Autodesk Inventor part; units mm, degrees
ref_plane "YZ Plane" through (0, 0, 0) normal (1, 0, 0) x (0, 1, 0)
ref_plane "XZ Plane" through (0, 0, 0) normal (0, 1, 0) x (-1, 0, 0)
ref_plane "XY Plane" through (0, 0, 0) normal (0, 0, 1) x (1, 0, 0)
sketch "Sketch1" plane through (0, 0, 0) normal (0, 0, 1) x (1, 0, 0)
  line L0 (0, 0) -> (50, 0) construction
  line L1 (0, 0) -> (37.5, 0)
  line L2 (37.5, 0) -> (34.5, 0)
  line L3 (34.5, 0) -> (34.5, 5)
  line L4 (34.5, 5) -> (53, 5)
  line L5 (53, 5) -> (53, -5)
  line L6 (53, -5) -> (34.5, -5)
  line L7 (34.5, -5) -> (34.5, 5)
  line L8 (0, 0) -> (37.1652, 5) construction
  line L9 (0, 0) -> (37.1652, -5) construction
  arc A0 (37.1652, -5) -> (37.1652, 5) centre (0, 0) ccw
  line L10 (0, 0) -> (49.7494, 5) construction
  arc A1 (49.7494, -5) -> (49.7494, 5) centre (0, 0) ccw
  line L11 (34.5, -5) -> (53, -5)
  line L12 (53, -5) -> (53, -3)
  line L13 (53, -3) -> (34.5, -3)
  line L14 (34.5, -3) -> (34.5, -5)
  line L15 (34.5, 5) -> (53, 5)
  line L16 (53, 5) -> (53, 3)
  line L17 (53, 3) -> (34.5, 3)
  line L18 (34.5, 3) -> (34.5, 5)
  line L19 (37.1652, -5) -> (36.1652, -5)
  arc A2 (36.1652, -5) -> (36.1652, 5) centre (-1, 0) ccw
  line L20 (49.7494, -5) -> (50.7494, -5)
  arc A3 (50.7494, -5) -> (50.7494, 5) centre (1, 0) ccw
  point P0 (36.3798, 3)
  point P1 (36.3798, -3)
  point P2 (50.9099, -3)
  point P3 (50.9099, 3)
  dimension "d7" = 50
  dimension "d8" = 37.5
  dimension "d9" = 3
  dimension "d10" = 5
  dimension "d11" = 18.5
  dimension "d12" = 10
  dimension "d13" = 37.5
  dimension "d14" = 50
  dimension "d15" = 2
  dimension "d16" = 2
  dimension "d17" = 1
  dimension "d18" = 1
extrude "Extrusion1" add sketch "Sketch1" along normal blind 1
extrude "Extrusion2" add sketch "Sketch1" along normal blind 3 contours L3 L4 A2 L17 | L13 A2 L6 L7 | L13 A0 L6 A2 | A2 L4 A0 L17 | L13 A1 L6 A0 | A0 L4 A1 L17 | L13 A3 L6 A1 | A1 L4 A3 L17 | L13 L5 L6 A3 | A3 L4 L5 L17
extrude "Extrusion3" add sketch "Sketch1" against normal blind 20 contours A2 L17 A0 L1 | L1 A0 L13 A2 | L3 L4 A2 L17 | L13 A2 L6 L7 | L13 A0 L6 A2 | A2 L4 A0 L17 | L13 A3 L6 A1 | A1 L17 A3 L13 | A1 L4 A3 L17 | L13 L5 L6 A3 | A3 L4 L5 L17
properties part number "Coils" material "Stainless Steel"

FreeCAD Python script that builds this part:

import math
import FreeCAD as App
import Part
import Sketcher

V = App.Vector


def add_polygon(sketch, points):
    """Adds a closed chain of lines whose ends are joined by coincident constraints."""
    first, n = sketch.GeometryCount, len(points)
    for a, b in zip(points, points[1:] + points[:1]):
        sketch.addGeometry(Part.LineSegment(App.Vector(*a, 0), App.Vector(*b, 0)), False)
    for i in range(n):
        sketch.addConstraint(Sketcher.Constraint("Coincident", first + i, 2, first + (i + 1) % n, 1))

doc = App.newDocument("Part")
params = doc.addObject("Spreadsheet::Sheet", "Params")
for row, (alias, value) in enumerate([
    ("sketch1_height", "10 mm"),
    ("sketch1_width", "18.5 mm"),
    ("pad1_length", "1 mm"),
    ("sketch2_height", "2 mm"),
    ("sketch2_width", "18.5 mm"),
    ("pad2_length", "3 mm"),
    ("sketch3_radius", "50 mm"),
    ("sketch3_radius2", "37.5 mm"),
    ("sketch3_height", "2 mm"),
    ("pad3_length", "20 mm"),
], start=1):
    params.set(f"A{row}", alias)
    params.set(f"B{row}", "=" + value)
    params.setAlias(f"B{row}", alias)

body = doc.addObject("PartDesign::Body", "Body")

sketch1 = body.newObject("Sketcher::SketchObject", "Sketch")
sketch1.AttachmentSupport = (doc.getObject("XY_Plane"), [""])
sketch1.MapMode = "FlatFace"
add_polygon(sketch1, [(34, -5), (53, -5), (53, 5), (34, 5)])
sketch1.addConstraint(Sketcher.Constraint("Horizontal", 0))
sketch1.addConstraint(Sketcher.Constraint("Vertical", 1))
sketch1.addConstraint(Sketcher.Constraint("Horizontal", 2))
sketch1.addConstraint(Sketcher.Constraint("Vertical", 3))
sketch1.addConstraint(Sketcher.Constraint("DistanceY", 1, 1, 1, 2, 10.0))
sketch1.addConstraint(Sketcher.Constraint("DistanceX", 0, 1, 0, 2, 18.5))
sketch1.addConstraint(Sketcher.Constraint("DistanceY", 0, 2, -1, 1, 5.0))
sketch1.addConstraint(Sketcher.Constraint("DistanceX", -1, 1, 0, 2, 53.0))
sketch1.setExpression("Constraints[8]", "Params.sketch1_height")
sketch1.setExpression("Constraints[9]", "Params.sketch1_width")
pad1 = body.newObject("PartDesign::Pad", "Pad")
pad1.Profile = sketch1
pad1.setExpression("Length", "Params.pad1_length")

sketch2 = body.newObject("Sketcher::SketchObject", "Sketch001")
sketch2.AttachmentSupport = (doc.getObject("XY_Plane"), [""])
sketch2.MapMode = "FlatFace"
add_polygon(sketch2, [(34.5, 5), (34.5, 3), (53, 3), (53, 5)])
add_polygon(sketch2, [(34.5, -3), (34.5, -5), (53, -5), (53, -3)])
sketch2.addConstraint(Sketcher.Constraint("Vertical", 0))
sketch2.addConstraint(Sketcher.Constraint("Horizontal", 1))
sketch2.addConstraint(Sketcher.Constraint("Vertical", 2))
sketch2.addConstraint(Sketcher.Constraint("Horizontal", 3))
sketch2.addConstraint(Sketcher.Constraint("Vertical", 4))
sketch2.addConstraint(Sketcher.Constraint("Horizontal", 5))
sketch2.addConstraint(Sketcher.Constraint("Vertical", 6))
sketch2.addConstraint(Sketcher.Constraint("Horizontal", 7))
sketch2.addConstraint(Sketcher.Constraint("Symmetric", 3, 2, 4, 2, -1))
sketch2.addConstraint(Sketcher.Constraint("Symmetric", 1, 2, 6, 2, -1))
sketch2.addConstraint(Sketcher.Constraint("DistanceY", 0, 2, 0, 1, 2.0))
sketch2.addConstraint(Sketcher.Constraint("DistanceX", 1, 1, 1, 2, 18.5))
sketch2.addConstraint(Sketcher.Constraint("DistanceY", -1, 1, 0, 2, 3.0))
sketch2.addConstraint(Sketcher.Constraint("DistanceX", -1, 1, 1, 2, 53.0))
sketch2.setExpression("Constraints[18]", "Params.sketch2_height")
sketch2.setExpression("Constraints[19]", "Params.sketch2_width")
pad2 = body.newObject("PartDesign::Pad", "Pad001")
pad2.Profile = sketch2
pad2.setExpression("Length", "Params.pad2_length")

sketch3 = body.newObject("Sketcher::SketchObject", "Sketch002")
sketch3.AttachmentSupport = (doc.getObject("XY_Plane"), [""])
sketch3.MapMode = "FlatFace"
sketch3.addGeometry(Part.ArcOfCircle(Part.Circle(V(-1, 0, 0), V(0, 0, 1), 37.5), math.radians(-4.59), math.radians(4.59)), False)
sketch3.addGeometry(Part.LineSegment(V(36.4, -3, 0), V(34.5, -3, 0)), False)
sketch3.addGeometry(Part.LineSegment(V(34.5, -3, 0), V(34.5, -5, 0)), False)
sketch3.addGeometry(Part.LineSegment(V(34.5, -5, 0), V(37.2, -5, 0)), False)
sketch3.addGeometry(Part.ArcOfCircle(Part.Circle(V(0, 0, 0), V(0, 0, 1), 37.5), math.radians(-7.66), math.radians(7.66)), False)
sketch3.addGeometry(Part.LineSegment(V(37.2, 5, 0), V(34.5, 5, 0)), False)
sketch3.addGeometry(Part.LineSegment(V(34.5, 5, 0), V(34.5, 3, 0)), False)
sketch3.addGeometry(Part.LineSegment(V(34.5, 3, 0), V(36.4, 3, 0)), False)
sketch3.addGeometry(Part.LineSegment(V(49.7, -5, 0), V(53, -5, 0)), False)
sketch3.addGeometry(Part.LineSegment(V(53, -5, 0), V(53, -3, 0)), False)
sketch3.addGeometry(Part.LineSegment(V(53, -3, 0), V(50.9, -3, 0)), False)
sketch3.addGeometry(Part.ArcOfCircle(Part.Circle(V(1, 0, 0), V(0, 0, 1), 50), math.radians(-3.44), math.radians(3.44)), False)
sketch3.addGeometry(Part.LineSegment(V(50.9, 3, 0), V(53, 3, 0)), False)
sketch3.addGeometry(Part.LineSegment(V(53, 3, 0), V(53, 5, 0)), False)
sketch3.addGeometry(Part.LineSegment(V(53, 5, 0), V(49.7, 5, 0)), False)
sketch3.addGeometry(Part.ArcOfCircle(Part.Circle(V(0, 0, 0), V(0, 0, 1), 50), math.radians(-5.74), math.radians(5.74)), False)
sketch3.addConstraint(Sketcher.Constraint("Coincident", 0, 1, 1, 1))
sketch3.addConstraint(Sketcher.Constraint("Coincident", 1, 2, 2, 1))
sketch3.addConstraint(Sketcher.Constraint("Coincident", 2, 2, 3, 1))
sketch3.addConstraint(Sketcher.Constraint("Coincident", 3, 2, 4, 1))
sketch3.addConstraint(Sketcher.Constraint("Coincident", 4, 2, 5, 1))
sketch3.addConstraint(Sketcher.Constraint("Coincident", 5, 2, 6, 1))
sketch3.addConstraint(Sketcher.Constraint("Coincident", 6, 2, 7, 1))
sketch3.addConstraint(Sketcher.Constraint("Coincident", 7, 2, 0, 2))
sketch3.addConstraint(Sketcher.Constraint("Coincident", 8, 2, 9, 1))
sketch3.addConstraint(Sketcher.Constraint("Coincident", 9, 2, 10, 1))
sketch3.addConstraint(Sketcher.Constraint("Coincident", 10, 2, 11, 1))
sketch3.addConstraint(Sketcher.Constraint("Coincident", 11, 2, 12, 1))
sketch3.addConstraint(Sketcher.Constraint("Coincident", 12, 2, 13, 1))
sketch3.addConstraint(Sketcher.Constraint("Coincident", 13, 2, 14, 1))
sketch3.addConstraint(Sketcher.Constraint("Coincident", 14, 2, 15, 2))
sketch3.addConstraint(Sketcher.Constraint("Coincident", 15, 1, 8, 1))
sketch3.addConstraint(Sketcher.Constraint("Horizontal", 1))
sketch3.addConstraint(Sketcher.Constraint("Vertical", 2))
sketch3.addConstraint(Sketcher.Constraint("Horizontal", 3))
sketch3.addConstraint(Sketcher.Constraint("Horizontal", 5))
sketch3.addConstraint(Sketcher.Constraint("Vertical", 6))
sketch3.addConstraint(Sketcher.Constraint("Horizontal", 7))
sketch3.addConstraint(Sketcher.Constraint("Horizontal", 8))
sketch3.addConstraint(Sketcher.Constraint("Vertical", 9))
sketch3.addConstraint(Sketcher.Constraint("Horizontal", 10))
sketch3.addConstraint(Sketcher.Constraint("Horizontal", 12))
sketch3.addConstraint(Sketcher.Constraint("Vertical", 13))
sketch3.addConstraint(Sketcher.Constraint("Horizontal", 14))
sketch3.addConstraint(Sketcher.Constraint("Coincident", 4, 3, -1, 1))
sketch3.addConstraint(Sketcher.Constraint("Coincident", 15, 3, -1, 1))
sketch3.addConstraint(Sketcher.Constraint("Equal", 0, 4))
sketch3.addConstraint(Sketcher.Constraint("Equal", 11, 15))
sketch3.addConstraint(Sketcher.Constraint("Symmetric", 0, 3, 11, 3, -1, 1))
sketch3.addConstraint(Sketcher.Constraint("Symmetric", 2, 2, 5, 2, -1))
sketch3.addConstraint(Sketcher.Constraint("Symmetric", 0, 1, 7, 2, -1))
sketch3.addConstraint(Sketcher.Constraint("Symmetric", 9, 2, 12, 2, -1))
sketch3.addConstraint(Sketcher.Constraint("Horizontal", 3, 2, 8, 2))
sketch3.addConstraint(Sketcher.Constraint("Horizontal", 1, 2, 9, 2))
sketch3.addConstraint(Sketcher.Constraint("Horizontal", 5, 2, 13, 2))
sketch3.addConstraint(Sketcher.Constraint("Radius", 11, 50.0))
sketch3.addConstraint(Sketcher.Constraint("Radius", 0, 37.5))
sketch3.addConstraint(Sketcher.Constraint("DistanceY", 2, 2, 2, 1, 2.0))
sketch3.addConstraint(Sketcher.Constraint("DistanceX", 0, 3, -1, 1, 1.0))
sketch3.addConstraint(Sketcher.Constraint("DistanceY", 0, 1, -1, 1, 3.0))
sketch3.addConstraint(Sketcher.Constraint("DistanceX", 2, 2, 8, 2, 18.5))
sketch3.addConstraint(Sketcher.Constraint("DistanceX", -1, 1, 8, 2, 53.0))
sketch3.setExpression("Constraints[39]", "Params.sketch3_radius")
sketch3.setExpression("Constraints[40]", "Params.sketch3_radius2")
sketch3.setExpression("Constraints[41]", "Params.sketch3_height")
pad3 = body.newObject("PartDesign::Pad", "Pad002")
pad3.Profile = sketch3
pad3.setExpression("Length", "Params.pad3_length")
pad3.Reversed = True

doc.recompute()
